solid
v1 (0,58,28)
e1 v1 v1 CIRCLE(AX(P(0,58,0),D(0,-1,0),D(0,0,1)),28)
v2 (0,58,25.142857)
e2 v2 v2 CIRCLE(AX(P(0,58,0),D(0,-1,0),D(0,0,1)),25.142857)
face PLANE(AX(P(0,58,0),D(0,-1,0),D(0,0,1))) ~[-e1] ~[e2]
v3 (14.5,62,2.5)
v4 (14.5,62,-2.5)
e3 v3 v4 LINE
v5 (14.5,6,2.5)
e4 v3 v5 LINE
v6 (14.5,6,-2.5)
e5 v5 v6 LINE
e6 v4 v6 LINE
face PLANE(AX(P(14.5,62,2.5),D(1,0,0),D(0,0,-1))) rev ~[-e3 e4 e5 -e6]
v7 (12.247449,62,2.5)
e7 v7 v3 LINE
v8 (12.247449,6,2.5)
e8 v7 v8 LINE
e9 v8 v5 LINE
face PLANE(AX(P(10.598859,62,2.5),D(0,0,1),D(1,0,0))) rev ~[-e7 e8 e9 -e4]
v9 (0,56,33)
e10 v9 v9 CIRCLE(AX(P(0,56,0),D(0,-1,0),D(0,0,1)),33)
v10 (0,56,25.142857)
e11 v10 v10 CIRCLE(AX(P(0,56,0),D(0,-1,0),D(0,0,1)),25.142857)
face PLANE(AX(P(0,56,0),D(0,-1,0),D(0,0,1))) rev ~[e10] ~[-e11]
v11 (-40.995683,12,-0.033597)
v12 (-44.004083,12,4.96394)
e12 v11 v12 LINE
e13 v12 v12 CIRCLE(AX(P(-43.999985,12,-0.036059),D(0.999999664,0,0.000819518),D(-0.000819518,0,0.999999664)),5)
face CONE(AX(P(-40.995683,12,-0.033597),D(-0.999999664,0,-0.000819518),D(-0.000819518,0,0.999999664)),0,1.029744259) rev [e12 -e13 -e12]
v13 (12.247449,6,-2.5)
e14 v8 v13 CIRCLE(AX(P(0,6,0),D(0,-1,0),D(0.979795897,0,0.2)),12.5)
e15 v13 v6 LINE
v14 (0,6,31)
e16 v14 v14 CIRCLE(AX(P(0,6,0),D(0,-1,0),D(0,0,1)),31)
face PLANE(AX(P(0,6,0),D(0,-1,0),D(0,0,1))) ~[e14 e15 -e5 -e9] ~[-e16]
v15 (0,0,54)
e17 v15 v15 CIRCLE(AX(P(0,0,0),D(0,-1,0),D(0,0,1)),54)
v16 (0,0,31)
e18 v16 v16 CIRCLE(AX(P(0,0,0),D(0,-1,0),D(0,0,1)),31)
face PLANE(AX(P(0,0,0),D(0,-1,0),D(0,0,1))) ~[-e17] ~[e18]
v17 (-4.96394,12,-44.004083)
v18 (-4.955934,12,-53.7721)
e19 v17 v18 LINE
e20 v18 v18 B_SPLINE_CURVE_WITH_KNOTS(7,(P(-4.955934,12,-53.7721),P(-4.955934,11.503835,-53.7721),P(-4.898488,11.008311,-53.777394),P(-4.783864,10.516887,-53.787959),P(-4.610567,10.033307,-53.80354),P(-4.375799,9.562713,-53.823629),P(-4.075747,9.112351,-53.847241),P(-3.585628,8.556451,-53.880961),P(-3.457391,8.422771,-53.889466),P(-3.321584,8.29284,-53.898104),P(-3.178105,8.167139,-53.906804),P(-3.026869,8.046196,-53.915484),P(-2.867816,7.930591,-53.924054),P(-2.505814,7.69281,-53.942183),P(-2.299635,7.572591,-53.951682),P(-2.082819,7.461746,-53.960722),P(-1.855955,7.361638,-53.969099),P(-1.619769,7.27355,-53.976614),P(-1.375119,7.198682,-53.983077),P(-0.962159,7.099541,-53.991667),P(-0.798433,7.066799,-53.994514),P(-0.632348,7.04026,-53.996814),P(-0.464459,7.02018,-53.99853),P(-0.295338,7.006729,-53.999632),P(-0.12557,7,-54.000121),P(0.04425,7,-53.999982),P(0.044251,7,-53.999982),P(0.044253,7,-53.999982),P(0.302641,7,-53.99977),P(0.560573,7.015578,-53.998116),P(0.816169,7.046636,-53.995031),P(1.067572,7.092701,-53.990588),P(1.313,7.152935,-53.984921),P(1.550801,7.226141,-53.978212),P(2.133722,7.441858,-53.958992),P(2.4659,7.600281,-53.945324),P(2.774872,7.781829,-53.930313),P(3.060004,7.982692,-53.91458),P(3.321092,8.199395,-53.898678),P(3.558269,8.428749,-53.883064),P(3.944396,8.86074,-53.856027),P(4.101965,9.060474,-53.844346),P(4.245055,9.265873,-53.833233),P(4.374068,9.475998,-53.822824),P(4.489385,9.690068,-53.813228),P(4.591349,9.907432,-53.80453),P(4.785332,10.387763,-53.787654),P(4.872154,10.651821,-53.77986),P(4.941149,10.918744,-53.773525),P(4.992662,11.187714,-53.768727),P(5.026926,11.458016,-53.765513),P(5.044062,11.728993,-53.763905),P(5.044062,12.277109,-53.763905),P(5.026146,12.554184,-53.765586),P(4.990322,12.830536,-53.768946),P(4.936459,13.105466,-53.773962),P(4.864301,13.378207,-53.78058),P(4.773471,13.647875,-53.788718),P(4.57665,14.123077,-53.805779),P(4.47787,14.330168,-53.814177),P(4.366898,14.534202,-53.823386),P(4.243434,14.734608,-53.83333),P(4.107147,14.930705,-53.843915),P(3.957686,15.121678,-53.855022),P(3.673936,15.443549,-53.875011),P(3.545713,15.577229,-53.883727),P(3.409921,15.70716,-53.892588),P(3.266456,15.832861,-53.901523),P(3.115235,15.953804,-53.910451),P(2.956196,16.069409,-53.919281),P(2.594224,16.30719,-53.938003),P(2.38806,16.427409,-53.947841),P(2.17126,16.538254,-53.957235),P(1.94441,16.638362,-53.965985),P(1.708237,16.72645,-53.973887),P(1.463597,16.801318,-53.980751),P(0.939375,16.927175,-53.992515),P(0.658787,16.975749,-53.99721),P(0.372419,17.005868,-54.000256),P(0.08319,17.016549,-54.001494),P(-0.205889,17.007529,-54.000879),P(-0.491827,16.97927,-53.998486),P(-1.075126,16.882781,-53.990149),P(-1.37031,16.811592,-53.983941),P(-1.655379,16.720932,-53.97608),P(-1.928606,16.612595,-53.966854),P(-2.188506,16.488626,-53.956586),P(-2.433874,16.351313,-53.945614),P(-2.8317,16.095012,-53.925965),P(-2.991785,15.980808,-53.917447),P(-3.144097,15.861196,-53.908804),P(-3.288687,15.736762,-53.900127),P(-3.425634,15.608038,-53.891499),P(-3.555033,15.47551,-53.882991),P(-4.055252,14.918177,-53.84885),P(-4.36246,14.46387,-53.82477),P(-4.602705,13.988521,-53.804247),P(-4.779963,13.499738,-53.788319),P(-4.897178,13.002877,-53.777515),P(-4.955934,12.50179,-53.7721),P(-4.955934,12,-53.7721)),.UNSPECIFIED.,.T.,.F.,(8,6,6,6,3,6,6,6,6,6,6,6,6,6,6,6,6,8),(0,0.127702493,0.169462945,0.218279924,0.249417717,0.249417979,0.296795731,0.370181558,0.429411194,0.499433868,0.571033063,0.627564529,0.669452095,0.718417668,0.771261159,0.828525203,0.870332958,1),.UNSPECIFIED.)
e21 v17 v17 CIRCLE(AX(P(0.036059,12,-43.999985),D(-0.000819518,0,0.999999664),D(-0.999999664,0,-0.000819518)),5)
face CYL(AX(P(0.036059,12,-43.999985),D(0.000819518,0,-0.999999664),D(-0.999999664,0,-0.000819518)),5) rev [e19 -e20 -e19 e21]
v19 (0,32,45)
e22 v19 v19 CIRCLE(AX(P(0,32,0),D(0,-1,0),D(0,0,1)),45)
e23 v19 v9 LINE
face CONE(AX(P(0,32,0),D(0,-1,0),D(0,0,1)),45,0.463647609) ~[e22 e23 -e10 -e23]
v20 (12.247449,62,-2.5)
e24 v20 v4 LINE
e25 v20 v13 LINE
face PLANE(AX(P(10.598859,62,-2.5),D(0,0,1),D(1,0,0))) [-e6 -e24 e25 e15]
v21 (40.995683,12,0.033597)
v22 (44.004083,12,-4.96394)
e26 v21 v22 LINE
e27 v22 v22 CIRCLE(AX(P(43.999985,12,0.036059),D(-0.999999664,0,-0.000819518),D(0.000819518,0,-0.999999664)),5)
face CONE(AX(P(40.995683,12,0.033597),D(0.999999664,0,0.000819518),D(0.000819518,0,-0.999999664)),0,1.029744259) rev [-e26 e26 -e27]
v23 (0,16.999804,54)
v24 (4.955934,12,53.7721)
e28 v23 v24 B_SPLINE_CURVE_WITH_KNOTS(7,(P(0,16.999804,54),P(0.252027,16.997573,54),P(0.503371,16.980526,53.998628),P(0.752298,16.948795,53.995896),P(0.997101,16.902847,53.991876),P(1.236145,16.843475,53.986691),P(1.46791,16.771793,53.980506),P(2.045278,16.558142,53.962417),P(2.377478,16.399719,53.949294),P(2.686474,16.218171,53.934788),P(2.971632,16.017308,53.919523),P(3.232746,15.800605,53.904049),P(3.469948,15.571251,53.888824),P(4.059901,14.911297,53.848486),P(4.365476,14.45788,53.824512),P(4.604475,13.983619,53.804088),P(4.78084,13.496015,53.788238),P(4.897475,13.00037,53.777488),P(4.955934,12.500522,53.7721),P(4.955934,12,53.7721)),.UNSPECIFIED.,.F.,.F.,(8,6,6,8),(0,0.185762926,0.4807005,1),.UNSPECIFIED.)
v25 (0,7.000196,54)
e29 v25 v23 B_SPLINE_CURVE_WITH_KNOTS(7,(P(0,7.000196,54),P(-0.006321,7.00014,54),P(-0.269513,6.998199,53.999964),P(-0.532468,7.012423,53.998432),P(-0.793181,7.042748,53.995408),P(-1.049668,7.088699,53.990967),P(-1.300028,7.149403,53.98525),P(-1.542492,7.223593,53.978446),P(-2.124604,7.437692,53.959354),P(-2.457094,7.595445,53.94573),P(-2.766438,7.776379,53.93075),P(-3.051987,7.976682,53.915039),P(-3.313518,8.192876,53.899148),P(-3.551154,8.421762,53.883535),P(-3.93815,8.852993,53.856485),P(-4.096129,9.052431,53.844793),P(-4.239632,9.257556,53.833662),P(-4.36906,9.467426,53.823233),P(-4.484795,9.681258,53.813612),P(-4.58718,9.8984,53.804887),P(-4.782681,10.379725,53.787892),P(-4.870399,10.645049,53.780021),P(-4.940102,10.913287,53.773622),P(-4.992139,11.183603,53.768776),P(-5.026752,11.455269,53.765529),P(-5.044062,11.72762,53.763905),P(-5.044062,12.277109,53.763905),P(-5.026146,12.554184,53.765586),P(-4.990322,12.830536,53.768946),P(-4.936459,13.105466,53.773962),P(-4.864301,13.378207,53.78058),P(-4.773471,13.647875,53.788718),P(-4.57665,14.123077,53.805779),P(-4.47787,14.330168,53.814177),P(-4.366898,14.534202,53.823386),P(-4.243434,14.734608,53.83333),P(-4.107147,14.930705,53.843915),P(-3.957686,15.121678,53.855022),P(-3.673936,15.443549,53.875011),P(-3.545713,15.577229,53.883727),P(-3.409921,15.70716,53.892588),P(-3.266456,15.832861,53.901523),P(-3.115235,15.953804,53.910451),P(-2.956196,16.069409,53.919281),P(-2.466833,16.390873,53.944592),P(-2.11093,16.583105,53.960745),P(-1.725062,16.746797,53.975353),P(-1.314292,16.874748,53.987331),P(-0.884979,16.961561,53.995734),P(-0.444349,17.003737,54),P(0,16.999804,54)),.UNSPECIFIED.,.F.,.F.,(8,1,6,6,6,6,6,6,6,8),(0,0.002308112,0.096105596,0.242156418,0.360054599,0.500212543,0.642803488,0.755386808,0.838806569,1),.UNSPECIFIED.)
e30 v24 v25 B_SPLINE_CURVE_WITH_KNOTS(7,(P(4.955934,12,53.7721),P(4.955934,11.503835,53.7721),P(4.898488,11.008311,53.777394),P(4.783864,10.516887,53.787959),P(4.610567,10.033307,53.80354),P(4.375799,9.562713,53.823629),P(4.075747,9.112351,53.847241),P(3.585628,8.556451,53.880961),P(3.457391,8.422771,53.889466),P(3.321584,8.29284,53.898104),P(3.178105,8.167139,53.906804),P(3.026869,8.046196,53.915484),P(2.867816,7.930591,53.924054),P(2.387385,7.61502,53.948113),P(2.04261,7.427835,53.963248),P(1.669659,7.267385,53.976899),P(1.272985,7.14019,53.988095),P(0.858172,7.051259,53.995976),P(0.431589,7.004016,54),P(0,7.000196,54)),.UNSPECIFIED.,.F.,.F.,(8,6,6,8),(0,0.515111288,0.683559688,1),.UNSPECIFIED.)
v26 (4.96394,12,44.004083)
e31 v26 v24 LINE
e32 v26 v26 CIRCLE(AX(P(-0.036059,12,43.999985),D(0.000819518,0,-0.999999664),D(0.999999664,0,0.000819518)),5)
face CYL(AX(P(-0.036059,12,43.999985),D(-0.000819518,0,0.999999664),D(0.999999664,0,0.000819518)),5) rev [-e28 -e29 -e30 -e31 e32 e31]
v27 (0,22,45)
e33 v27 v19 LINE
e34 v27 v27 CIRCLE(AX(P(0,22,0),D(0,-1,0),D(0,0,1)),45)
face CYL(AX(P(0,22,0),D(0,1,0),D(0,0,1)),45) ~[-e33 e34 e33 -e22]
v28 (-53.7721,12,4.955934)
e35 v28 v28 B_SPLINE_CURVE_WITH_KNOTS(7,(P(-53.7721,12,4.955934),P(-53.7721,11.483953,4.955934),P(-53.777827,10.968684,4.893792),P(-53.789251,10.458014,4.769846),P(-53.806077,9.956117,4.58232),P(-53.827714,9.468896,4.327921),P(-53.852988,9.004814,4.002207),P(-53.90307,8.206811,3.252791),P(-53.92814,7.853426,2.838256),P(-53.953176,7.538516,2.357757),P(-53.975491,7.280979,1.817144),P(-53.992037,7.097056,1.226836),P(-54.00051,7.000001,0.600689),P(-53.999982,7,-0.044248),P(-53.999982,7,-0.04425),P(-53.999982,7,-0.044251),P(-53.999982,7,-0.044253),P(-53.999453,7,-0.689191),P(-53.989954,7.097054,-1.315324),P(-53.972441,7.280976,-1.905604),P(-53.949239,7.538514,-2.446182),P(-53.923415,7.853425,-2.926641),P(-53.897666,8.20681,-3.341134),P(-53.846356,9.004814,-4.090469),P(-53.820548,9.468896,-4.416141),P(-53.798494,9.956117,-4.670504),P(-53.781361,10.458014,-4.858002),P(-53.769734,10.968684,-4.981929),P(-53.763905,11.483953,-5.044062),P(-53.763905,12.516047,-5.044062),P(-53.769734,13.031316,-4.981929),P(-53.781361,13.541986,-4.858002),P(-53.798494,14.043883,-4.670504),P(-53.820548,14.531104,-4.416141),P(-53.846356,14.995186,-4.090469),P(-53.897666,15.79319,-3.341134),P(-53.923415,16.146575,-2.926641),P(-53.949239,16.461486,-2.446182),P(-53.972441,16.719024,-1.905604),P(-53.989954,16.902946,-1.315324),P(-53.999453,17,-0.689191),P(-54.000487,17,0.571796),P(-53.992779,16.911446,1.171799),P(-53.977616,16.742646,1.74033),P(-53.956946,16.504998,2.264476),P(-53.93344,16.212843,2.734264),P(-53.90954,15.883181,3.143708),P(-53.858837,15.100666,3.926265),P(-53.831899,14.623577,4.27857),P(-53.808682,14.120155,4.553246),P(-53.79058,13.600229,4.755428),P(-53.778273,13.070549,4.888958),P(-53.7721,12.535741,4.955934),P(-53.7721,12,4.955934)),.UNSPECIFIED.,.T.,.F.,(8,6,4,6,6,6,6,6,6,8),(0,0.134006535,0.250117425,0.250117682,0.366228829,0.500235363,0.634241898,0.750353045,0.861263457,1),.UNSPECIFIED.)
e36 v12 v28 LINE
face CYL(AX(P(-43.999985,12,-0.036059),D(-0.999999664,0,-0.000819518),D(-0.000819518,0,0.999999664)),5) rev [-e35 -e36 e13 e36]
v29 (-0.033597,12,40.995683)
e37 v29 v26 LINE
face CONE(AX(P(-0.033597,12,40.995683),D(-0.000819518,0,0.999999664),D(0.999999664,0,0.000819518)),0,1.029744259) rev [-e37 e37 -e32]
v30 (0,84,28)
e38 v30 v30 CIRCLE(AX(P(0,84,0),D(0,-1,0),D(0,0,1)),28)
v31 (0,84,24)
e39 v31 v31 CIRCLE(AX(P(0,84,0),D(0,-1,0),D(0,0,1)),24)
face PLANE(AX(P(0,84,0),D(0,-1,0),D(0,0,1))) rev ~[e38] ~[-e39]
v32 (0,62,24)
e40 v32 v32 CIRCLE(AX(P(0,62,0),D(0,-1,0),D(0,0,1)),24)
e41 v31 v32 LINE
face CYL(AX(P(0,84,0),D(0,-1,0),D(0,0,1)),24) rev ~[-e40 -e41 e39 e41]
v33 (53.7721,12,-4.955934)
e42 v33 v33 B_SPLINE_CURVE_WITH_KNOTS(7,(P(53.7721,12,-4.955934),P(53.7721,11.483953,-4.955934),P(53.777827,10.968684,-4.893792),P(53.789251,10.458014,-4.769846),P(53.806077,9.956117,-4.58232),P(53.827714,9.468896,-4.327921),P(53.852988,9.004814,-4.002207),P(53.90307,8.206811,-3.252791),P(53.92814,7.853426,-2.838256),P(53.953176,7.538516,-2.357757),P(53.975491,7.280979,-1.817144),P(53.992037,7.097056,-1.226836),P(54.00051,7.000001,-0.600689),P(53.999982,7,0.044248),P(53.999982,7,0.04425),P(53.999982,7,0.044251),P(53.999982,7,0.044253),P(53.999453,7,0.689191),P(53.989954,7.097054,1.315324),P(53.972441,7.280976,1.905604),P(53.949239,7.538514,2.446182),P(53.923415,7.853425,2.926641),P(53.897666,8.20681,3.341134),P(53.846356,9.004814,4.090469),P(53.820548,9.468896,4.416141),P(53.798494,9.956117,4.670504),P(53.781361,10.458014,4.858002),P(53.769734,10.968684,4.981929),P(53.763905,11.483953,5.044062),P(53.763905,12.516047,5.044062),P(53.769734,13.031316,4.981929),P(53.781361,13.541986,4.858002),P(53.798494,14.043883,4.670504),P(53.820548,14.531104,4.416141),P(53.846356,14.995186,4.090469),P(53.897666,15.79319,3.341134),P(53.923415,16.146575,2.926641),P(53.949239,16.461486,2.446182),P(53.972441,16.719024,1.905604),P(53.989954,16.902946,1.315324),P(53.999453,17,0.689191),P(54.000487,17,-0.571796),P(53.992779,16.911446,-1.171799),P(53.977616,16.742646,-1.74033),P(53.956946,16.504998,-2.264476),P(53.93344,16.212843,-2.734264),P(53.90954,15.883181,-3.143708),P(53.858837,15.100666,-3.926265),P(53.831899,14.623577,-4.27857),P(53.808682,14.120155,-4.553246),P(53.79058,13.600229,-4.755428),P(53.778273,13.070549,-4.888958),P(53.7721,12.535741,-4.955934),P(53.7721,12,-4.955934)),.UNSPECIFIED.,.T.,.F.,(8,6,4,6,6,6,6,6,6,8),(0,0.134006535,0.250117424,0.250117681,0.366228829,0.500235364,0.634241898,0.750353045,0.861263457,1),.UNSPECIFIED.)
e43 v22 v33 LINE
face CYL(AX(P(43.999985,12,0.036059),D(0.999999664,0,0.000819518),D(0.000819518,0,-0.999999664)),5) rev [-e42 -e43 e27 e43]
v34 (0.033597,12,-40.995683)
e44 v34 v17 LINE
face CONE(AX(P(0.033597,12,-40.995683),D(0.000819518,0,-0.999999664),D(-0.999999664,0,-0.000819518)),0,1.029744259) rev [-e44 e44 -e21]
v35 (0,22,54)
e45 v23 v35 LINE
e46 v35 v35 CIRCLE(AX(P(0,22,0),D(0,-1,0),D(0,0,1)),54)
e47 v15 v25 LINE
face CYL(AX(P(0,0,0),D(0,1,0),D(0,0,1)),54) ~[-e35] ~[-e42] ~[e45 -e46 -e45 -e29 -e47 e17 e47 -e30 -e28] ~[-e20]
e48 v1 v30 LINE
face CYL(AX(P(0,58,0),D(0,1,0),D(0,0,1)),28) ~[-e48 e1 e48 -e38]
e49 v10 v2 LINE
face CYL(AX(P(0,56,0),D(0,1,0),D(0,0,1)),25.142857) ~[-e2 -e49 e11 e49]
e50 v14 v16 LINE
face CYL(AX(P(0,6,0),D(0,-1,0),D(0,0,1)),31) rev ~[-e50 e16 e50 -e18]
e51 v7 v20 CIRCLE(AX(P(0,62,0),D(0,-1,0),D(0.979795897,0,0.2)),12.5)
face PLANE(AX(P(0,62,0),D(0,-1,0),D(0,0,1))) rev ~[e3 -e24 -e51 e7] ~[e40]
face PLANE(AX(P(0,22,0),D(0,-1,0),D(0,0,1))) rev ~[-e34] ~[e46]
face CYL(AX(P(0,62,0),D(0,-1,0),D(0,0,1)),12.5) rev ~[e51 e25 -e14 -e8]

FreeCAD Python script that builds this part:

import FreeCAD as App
import Part
import Sketcher
from FreeCAD import Vector


def add_polygon(sketch, points):
    """Adds a closed chain of lines whose ends are joined by coincident constraints."""
    first, n = sketch.GeometryCount, len(points)
    for a, b in zip(points, points[1:] + points[:1]):
        sketch.addGeometry(Part.LineSegment(App.Vector(*a, 0), App.Vector(*b, 0)), False)
    for i in range(n):
        sketch.addConstraint(Sketcher.Constraint("Coincident", first + i, 2, first + (i + 1) % n, 1))

doc = App.newDocument("Part")
body = doc.addObject("PartDesign::Body", "Body")

# Sketch on XY plane
sketch1 = body.newObject("Sketcher::SketchObject", "Sketch")
sketch1.AttachmentSupport = (doc.getObject("XY_Plane"), [""])
sketch1.MapMode = "FlatFace"
add_polygon(sketch1, [(24, 84), (24, 62), (12.5, 62), (12.5, 6), (31, 6), (31, 0), (54, 0), (54, 22), (45, 22), (45, 32), (33, 56), (25.1, 56), (25.1, 58), (28, 58), (28, 84)])  # lines 0-14
sketch1.addConstraint(Sketcher.Constraint("Vertical", 0))
sketch1.addConstraint(Sketcher.Constraint("Horizontal", 1))
sketch1.addConstraint(Sketcher.Constraint("Vertical", 2))
sketch1.addConstraint(Sketcher.Constraint("Horizontal", 3))
sketch1.addConstraint(Sketcher.Constraint("Vertical", 4))
sketch1.addConstraint(Sketcher.Constraint("Horizontal", 5))
sketch1.addConstraint(Sketcher.Constraint("Vertical", 6))
sketch1.addConstraint(Sketcher.Constraint("Horizontal", 7))
sketch1.addConstraint(Sketcher.Constraint("Vertical", 8))
sketch1.addConstraint(Sketcher.Constraint("Horizontal", 10))
sketch1.addConstraint(Sketcher.Constraint("Vertical", 11))
sketch1.addConstraint(Sketcher.Constraint("Horizontal", 12))
sketch1.addConstraint(Sketcher.Constraint("Vertical", 13))
sketch1.addConstraint(Sketcher.Constraint("Horizontal", 14))
sketch1.addConstraint(Sketcher.Constraint("PointOnObject", 4, 2, -1))
sketch1.addConstraint(Sketcher.Constraint("Equal", 0, 6))
sketch1.addConstraint(Sketcher.Constraint("DistanceX", 5, 1, 5, 2, 23.0))
sketch1.addConstraint(Sketcher.Constraint("DistanceX", 7, 2, 7, 1, 9.0))
sketch1.addConstraint(Sketcher.Constraint("DistanceX", 14, 2, 14, 1, 4.0))
sketch1.addConstraint(Sketcher.Constraint("DistanceY", 0, 2, 0, 1, 22.0))
sketch1.addConstraint(Sketcher.Constraint("DistanceY", 2, 2, 2, 1, 56.0))
sketch1.addConstraint(Sketcher.Constraint("DistanceY", 4, 2, 4, 1, 6.0))
sketch1.addConstraint(Sketcher.Constraint("DistanceY", 8, 1, 8, 2, 10.0))
sketch1.addConstraint(Sketcher.Constraint("DistanceY", 11, 1, 11, 2, 2.0))
sketch1.addConstraint(Sketcher.Constraint("DistanceY", 13, 1, 13, 2, 26.0))
sketch1.addConstraint(Sketcher.Constraint("DistanceX", 1, 2, 1, 1, 11.5))
sketch1.addConstraint(Sketcher.Constraint("DistanceX", 3, 1, 3, 2, 18.5))
sketch1.addConstraint(Sketcher.Constraint("DistanceX", -1, 1, 0, 2, 24.0))
sketch1.addConstraint(Sketcher.Constraint("DistanceX", -1, 1, 9, 2, 33.0))
sketch1.addConstraint(Sketcher.Constraint("DistanceX", 10, 2, 10, 1, 7.857143))
revolution = body.newObject("PartDesign::Revolution", "Revolution")
revolution.Profile = sketch1
revolution.ReferenceAxis = (sketch1, ["V_Axis"])
revolution.Angle = 360

# Sketch on XZ plane
sketch2 = body.newObject("Sketcher::SketchObject", "Sketch001")
sketch2.AttachmentSupport = (doc.getObject("XZ_Plane"), [""])
sketch2.MapMode = "FlatFace"
sketch2.AttachmentOffset = App.Placement(Vector(0, 0, -62), App.Rotation())
add_polygon(sketch2, [(10.6, -2.5), (10.6, 2.5), (14.5, 2.5), (14.5, -2.5)])  # lines 0-3
sketch2.addConstraint(Sketcher.Constraint("Vertical", 0))
sketch2.addConstraint(Sketcher.Constraint("Horizontal", 1))
sketch2.addConstraint(Sketcher.Constraint("Vertical", 2))
sketch2.addConstraint(Sketcher.Constraint("Horizontal", 3))
sketch2.addConstraint(Sketcher.Constraint("DistanceY", 0, 1, 0, 2, 5.0))
sketch2.addConstraint(Sketcher.Constraint("DistanceY", -1, 1, 0, 2, 2.5))
sketch2.addConstraint(Sketcher.Constraint("DistanceX", -1, 1, 1, 2, 14.5))
sketch2.addConstraint(Sketcher.Constraint("DistanceX", 1, 1, 1, 2, 3.901141))
pocket1 = body.newObject("PartDesign::Pocket", "Pocket")
pocket1.Profile = sketch2
pocket1.Type = "ThroughAll"
pocket1.Reversed = True

# Sketch on XZ plane
sketch3 = body.newObject("Sketcher::SketchObject", "Sketch002")
sketch3.AttachmentSupport = (doc.getObject("XZ_Plane"), [""])
sketch3.MapMode = "FlatFace"
sketch3.AttachmentOffset = App.Placement(Vector(0, 0, -12), App.Rotation())
add_polygon(sketch3, [(0, 41), (0, 54), (5, 54), (5, 44)])  # lines 0-3
sketch3.addGeometry(Part.LineSegment(Vector(0, 54, 0), Vector(0, 41, 0)), True)  # axis
sketch3.addConstraint(Sketcher.Constraint("Coincident", 4, 1, 0, 2))
sketch3.addConstraint(Sketcher.Constraint("Coincident", 4, 2, 3, 2))
sketch3.addConstraint(Sketcher.Constraint("Perpendicular", 0, 1))
sketch3.addConstraint(Sketcher.Constraint("Perpendicular", 1, 2))
sketch3.addConstraint(Sketcher.Constraint("Distance", 1, 5.0))
sketch3.addConstraint(Sketcher.Constraint("Distance", 2, 10.0))
sketch3.addConstraint(Sketcher.Constraint("DistanceY", 2, 2, 0, 2, 9.995899))
sketch3.addConstraint(Sketcher.Constraint("DistanceY", 3, 2, 2, 2, 3.0084))
sketch3.addConstraint(Sketcher.Constraint("DistanceY", -1, 1, 0, 2, 53.999982))
sketch3.addConstraint(Sketcher.Constraint("DistanceX", -1, 1, 2, 2, 4.96394))
groove = body.newObject("PartDesign::Groove", "Groove")
groove.Profile = sketch3
groove.ReferenceAxis = (sketch3, ["Axis0"])
groove.Angle = 360
doc.recompute()

polarpattern = body.newObject("PartDesign::PolarPattern", "PolarPattern")
polarpattern.Originals = [groove]
polarpattern.Axis = (doc.getObject("Y_Axis"), [""])
polarpattern.Angle = 360
polarpattern.Occurrences = 4
body.Tip = polarpattern

doc.recompute()
